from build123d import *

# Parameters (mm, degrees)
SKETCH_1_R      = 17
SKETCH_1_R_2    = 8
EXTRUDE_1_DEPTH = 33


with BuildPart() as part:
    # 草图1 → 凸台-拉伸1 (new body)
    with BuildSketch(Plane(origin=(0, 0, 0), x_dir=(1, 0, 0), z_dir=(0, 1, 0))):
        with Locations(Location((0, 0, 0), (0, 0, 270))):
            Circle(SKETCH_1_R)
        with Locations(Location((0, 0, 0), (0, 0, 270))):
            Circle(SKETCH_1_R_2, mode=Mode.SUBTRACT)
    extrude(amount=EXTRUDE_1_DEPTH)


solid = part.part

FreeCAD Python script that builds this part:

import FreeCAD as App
import Part
import Sketcher
from FreeCAD import Vector

doc = App.newDocument("Part")
body = doc.addObject("PartDesign::Body", "Body")

# Sketch on XZ plane
sketch1 = doc.addObject("Sketcher::SketchObject", "Sketch")
body.addObject(sketch1)
sketch1.AttachmentSupport = (doc.XZ_Plane, [""])
sketch1.MapMode = "FlatFace"
sketch1.addGeometry([
    Part.Circle(Vector(0, 0, 0), Vector(0, 0, 1), 17),
    Part.Circle(Vector(0, 0, 0), Vector(0, 0, 1), 8),
], False)
sketch1.addConstraint([
    Sketcher.Constraint("Coincident", 0, 3, -1, 1),
    Sketcher.Constraint("Coincident", 1, 3, -1, 1),
    Sketcher.Constraint("Diameter", 0, 34.0),
    Sketcher.Constraint("Diameter", 1, 16.0),
])
pad1 = doc.addObject("PartDesign::Pad", "Pad")
body.addObject(pad1)
pad1.Profile = sketch1
pad1.Length = 33
pad1.Reversed = True

doc.recompute()
